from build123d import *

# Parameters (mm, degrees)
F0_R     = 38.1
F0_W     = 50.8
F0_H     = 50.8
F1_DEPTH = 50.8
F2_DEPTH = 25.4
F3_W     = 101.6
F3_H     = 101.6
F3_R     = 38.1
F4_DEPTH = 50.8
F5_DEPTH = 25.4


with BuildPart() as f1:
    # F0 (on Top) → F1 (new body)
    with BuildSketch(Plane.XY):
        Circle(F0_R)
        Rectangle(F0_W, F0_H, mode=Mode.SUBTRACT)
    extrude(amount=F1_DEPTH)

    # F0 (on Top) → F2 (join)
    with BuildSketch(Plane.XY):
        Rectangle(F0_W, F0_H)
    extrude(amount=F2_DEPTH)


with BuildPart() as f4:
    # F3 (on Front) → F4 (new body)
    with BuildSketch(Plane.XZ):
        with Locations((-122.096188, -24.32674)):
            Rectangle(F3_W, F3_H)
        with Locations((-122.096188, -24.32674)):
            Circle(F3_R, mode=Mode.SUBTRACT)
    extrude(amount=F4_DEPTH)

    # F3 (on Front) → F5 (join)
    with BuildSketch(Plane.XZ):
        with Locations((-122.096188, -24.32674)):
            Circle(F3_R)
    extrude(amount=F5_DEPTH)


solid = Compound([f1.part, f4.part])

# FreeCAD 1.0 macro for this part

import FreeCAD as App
import Part
import Sketcher
from FreeCAD import Vector
Q = App.Units.Quantity


def add_polygon(sketch, points):
    """Adds a closed chain of lines whose ends are joined by coincident constraints."""
    first, n = sketch.GeometryCount, len(points)
    for a, b in zip(points, points[1:] + points[:1]):
        sketch.addGeometry(Part.LineSegment(App.Vector(*a, 0), App.Vector(*b, 0)), False)
    for i in range(n):
        sketch.addConstraint(Sketcher.Constraint("Coincident", first + i, 2, first + (i + 1) % n, 1))

doc = App.newDocument("Part")
body = doc.addObject("PartDesign::Body", "Body")

sketch1 = body.newObject("Sketcher::SketchObject", "Sketch")
sketch1.AttachmentSupport = (doc.getObject("XY_Plane"), [""])
sketch1.MapMode = "FlatFace"
sketch1.addGeometry(Part.Circle(Vector(0, 0, 0), Vector(0, 0, 1), 38), False)
add_polygon(sketch1, [(25, -25), (-25, -25), (-25, 25), (25, 25)])
sketch1.addConstraint([
    Sketcher.Constraint("Horizontal", 1),
    Sketcher.Constraint("Vertical", 2),
    Sketcher.Constraint("Horizontal", 3),
    Sketcher.Constraint("Vertical", 4),
    Sketcher.Constraint("Coincident", 0, 3, -1, 1),
    Sketcher.Constraint("Symmetric", 1, 2, 3, 2, -1, 1),
    Sketcher.Constraint("Equal", 3, 2),
    Sketcher.Constraint("Diameter", 0, Q("3 in")),
    Sketcher.Constraint("DistanceX", 1, 2, 1, 1, Q("2 in")),
])
pad1 = body.newObject("PartDesign::Pad", "Pad")
pad1.Profile = sketch1
pad1.Length = Q("2 in")

sketch2 = body.newObject("Sketcher::SketchObject", "Sketch001")
sketch2.AttachmentSupport = (doc.getObject("XY_Plane"), [""])
sketch2.MapMode = "FlatFace"
add_polygon(sketch2, [(-25, 25), (-25, -25), (25, -25), (25, 25)])
sketch2.addConstraint([
    Sketcher.Constraint("Vertical", 0),
    Sketcher.Constraint("Horizontal", 1),
    Sketcher.Constraint("Vertical", 2),
    Sketcher.Constraint("Horizontal", 3),
    Sketcher.Constraint("Symmetric", 0, 2, 2, 2, -1, 1),
    Sketcher.Constraint("Equal", 3, 0),
    Sketcher.Constraint("DistanceX", 1, 1, 1, 2, Q("2 in")),
])
pad2 = body.newObject("PartDesign::Pad", "Pad001")
pad2.Profile = sketch2
pad2.Length = Q("1 in")
body2 = doc.addObject("PartDesign::Body", "Body001")

sketch3 = body2.newObject("Sketcher::SketchObject", "Sketch002")
sketch3.AttachmentSupport = (doc.getObject("XZ_Plane001"), [""])
sketch3.MapMode = "FlatFace"
add_polygon(sketch3, [(-173, 26), (-173, -75), (-71, -75), (-71, 26)])
sketch3.addGeometry(Part.Circle(Vector(-122, -24, 0), Vector(0, 0, 1), 38), False)
sketch3.addConstraint([
    Sketcher.Constraint("Vertical", 0),
    Sketcher.Constraint("Horizontal", 1),
    Sketcher.Constraint("Vertical", 2),
    Sketcher.Constraint("Horizontal", 3),
    Sketcher.Constraint("Equal", 3, 0),
    Sketcher.Constraint("Diameter", 4, Q("3 in")),
    Sketcher.Constraint("DistanceX", 1, 1, 1, 2, Q("4 in")),
    Sketcher.Constraint("DistanceX", 0, 2, 4, 3, Q("2 in")),
    Sketcher.Constraint("DistanceY", 0, 2, 4, 3, Q("2 in")),
    Sketcher.Constraint("DistanceY", 4, 3, -1, 1, Q("24.32674 mm")),
    Sketcher.Constraint("DistanceX", 0, 2, -1, 1, Q("172.896188 mm")),
])
pad3 = body2.newObject("PartDesign::Pad", "Pad002")
pad3.Profile = sketch3
pad3.Length = Q("2 in")

sketch4 = body2.newObject("Sketcher::SketchObject", "Sketch003")
sketch4.AttachmentSupport = (doc.getObject("XZ_Plane001"), [""])
sketch4.MapMode = "FlatFace"
sketch4.addGeometry(Part.Circle(Vector(-122, -24, 0), Vector(0, 0, 1), 38), False)
sketch4.addConstraint([
    Sketcher.Constraint("Diameter", 0, Q("3 in")),
    Sketcher.Constraint("DistanceY", 0, 3, -1, 1, Q("24.32674 mm")),
    Sketcher.Constraint("DistanceX", 0, 3, -1, 1, Q("122.096188 mm")),
])
pad4 = body2.newObject("PartDesign::Pad", "Pad003")
pad4.Profile = sketch4
pad4.Length = Q("1 in")

doc.recompute()
